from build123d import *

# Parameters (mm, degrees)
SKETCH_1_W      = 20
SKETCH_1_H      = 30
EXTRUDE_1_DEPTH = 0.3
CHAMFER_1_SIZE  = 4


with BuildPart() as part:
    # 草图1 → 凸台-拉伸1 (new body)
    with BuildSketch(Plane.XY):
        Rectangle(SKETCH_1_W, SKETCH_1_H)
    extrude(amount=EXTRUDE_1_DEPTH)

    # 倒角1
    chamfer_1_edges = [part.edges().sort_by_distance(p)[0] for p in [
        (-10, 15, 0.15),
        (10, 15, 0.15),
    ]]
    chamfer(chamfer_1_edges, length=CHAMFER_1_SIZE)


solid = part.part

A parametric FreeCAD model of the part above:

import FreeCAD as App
import Part
import Sketcher
from FreeCAD import Vector
Q = App.Units.Quantity


def edges_at(feature, points):
    """Names of the edges that pass closest to the given points."""
    edges = feature.Shape.Edges
    near = lambda p: min(range(len(edges)), key=lambda i: edges[i].distToShape(Part.Vertex(*p))[0])
    return sorted({f"Edge{near(p) + 1}" for p in points})

doc = App.newDocument("Part")
body = doc.addObject("PartDesign::Body", "Body")

# Sketch on XY plane
sketch1 = body.newObject("Sketcher::SketchObject", "Sketch")
sketch1.AttachmentSupport = (doc.getObject("XY_Plane"), [""])
sketch1.MapMode = "FlatFace"
sketch1.addGeometry([
    Part.LineSegment(Vector(-10, 15, 0), Vector(-10, -15, 0)),
    Part.LineSegment(Vector(-10, -15, 0), Vector(10, -15, 0)),
    Part.LineSegment(Vector(10, -15, 0), Vector(10, 15, 0)),
    Part.LineSegment(Vector(10, 15, 0), Vector(-10, 15, 0)),
], False)
sketch1.addConstraint([
    Sketcher.Constraint("Coincident", 0, 2, 1, 1),
    Sketcher.Constraint("Coincident", 1, 2, 2, 1),
    Sketcher.Constraint("Coincident", 2, 2, 3, 1),
    Sketcher.Constraint("Coincident", 3, 2, 0, 1),
    Sketcher.Constraint("Vertical", 0),
    Sketcher.Constraint("Horizontal", 1),
    Sketcher.Constraint("Vertical", 2),
    Sketcher.Constraint("Horizontal", 3),
    Sketcher.Constraint("Symmetric", 0, 2, 2, 2, -1, 1),
    Sketcher.Constraint("DistanceX", 1, 1, 1, 2, Q("20 mm")),
    Sketcher.Constraint("DistanceY", 0, 2, 0, 1, Q("30 mm")),
])
pad1 = body.newObject("PartDesign::Pad", "Pad")
pad1.Profile = sketch1
pad1.Length = 0.3
doc.recompute()

chamfer = body.newObject("PartDesign::Chamfer", "Chamfer")
chamfer.Base = (pad1, edges_at(pad1, [(-10, 15, 0.15), (10, 15, 0.15)]))
chamfer.Size = 4

doc.recompute()
